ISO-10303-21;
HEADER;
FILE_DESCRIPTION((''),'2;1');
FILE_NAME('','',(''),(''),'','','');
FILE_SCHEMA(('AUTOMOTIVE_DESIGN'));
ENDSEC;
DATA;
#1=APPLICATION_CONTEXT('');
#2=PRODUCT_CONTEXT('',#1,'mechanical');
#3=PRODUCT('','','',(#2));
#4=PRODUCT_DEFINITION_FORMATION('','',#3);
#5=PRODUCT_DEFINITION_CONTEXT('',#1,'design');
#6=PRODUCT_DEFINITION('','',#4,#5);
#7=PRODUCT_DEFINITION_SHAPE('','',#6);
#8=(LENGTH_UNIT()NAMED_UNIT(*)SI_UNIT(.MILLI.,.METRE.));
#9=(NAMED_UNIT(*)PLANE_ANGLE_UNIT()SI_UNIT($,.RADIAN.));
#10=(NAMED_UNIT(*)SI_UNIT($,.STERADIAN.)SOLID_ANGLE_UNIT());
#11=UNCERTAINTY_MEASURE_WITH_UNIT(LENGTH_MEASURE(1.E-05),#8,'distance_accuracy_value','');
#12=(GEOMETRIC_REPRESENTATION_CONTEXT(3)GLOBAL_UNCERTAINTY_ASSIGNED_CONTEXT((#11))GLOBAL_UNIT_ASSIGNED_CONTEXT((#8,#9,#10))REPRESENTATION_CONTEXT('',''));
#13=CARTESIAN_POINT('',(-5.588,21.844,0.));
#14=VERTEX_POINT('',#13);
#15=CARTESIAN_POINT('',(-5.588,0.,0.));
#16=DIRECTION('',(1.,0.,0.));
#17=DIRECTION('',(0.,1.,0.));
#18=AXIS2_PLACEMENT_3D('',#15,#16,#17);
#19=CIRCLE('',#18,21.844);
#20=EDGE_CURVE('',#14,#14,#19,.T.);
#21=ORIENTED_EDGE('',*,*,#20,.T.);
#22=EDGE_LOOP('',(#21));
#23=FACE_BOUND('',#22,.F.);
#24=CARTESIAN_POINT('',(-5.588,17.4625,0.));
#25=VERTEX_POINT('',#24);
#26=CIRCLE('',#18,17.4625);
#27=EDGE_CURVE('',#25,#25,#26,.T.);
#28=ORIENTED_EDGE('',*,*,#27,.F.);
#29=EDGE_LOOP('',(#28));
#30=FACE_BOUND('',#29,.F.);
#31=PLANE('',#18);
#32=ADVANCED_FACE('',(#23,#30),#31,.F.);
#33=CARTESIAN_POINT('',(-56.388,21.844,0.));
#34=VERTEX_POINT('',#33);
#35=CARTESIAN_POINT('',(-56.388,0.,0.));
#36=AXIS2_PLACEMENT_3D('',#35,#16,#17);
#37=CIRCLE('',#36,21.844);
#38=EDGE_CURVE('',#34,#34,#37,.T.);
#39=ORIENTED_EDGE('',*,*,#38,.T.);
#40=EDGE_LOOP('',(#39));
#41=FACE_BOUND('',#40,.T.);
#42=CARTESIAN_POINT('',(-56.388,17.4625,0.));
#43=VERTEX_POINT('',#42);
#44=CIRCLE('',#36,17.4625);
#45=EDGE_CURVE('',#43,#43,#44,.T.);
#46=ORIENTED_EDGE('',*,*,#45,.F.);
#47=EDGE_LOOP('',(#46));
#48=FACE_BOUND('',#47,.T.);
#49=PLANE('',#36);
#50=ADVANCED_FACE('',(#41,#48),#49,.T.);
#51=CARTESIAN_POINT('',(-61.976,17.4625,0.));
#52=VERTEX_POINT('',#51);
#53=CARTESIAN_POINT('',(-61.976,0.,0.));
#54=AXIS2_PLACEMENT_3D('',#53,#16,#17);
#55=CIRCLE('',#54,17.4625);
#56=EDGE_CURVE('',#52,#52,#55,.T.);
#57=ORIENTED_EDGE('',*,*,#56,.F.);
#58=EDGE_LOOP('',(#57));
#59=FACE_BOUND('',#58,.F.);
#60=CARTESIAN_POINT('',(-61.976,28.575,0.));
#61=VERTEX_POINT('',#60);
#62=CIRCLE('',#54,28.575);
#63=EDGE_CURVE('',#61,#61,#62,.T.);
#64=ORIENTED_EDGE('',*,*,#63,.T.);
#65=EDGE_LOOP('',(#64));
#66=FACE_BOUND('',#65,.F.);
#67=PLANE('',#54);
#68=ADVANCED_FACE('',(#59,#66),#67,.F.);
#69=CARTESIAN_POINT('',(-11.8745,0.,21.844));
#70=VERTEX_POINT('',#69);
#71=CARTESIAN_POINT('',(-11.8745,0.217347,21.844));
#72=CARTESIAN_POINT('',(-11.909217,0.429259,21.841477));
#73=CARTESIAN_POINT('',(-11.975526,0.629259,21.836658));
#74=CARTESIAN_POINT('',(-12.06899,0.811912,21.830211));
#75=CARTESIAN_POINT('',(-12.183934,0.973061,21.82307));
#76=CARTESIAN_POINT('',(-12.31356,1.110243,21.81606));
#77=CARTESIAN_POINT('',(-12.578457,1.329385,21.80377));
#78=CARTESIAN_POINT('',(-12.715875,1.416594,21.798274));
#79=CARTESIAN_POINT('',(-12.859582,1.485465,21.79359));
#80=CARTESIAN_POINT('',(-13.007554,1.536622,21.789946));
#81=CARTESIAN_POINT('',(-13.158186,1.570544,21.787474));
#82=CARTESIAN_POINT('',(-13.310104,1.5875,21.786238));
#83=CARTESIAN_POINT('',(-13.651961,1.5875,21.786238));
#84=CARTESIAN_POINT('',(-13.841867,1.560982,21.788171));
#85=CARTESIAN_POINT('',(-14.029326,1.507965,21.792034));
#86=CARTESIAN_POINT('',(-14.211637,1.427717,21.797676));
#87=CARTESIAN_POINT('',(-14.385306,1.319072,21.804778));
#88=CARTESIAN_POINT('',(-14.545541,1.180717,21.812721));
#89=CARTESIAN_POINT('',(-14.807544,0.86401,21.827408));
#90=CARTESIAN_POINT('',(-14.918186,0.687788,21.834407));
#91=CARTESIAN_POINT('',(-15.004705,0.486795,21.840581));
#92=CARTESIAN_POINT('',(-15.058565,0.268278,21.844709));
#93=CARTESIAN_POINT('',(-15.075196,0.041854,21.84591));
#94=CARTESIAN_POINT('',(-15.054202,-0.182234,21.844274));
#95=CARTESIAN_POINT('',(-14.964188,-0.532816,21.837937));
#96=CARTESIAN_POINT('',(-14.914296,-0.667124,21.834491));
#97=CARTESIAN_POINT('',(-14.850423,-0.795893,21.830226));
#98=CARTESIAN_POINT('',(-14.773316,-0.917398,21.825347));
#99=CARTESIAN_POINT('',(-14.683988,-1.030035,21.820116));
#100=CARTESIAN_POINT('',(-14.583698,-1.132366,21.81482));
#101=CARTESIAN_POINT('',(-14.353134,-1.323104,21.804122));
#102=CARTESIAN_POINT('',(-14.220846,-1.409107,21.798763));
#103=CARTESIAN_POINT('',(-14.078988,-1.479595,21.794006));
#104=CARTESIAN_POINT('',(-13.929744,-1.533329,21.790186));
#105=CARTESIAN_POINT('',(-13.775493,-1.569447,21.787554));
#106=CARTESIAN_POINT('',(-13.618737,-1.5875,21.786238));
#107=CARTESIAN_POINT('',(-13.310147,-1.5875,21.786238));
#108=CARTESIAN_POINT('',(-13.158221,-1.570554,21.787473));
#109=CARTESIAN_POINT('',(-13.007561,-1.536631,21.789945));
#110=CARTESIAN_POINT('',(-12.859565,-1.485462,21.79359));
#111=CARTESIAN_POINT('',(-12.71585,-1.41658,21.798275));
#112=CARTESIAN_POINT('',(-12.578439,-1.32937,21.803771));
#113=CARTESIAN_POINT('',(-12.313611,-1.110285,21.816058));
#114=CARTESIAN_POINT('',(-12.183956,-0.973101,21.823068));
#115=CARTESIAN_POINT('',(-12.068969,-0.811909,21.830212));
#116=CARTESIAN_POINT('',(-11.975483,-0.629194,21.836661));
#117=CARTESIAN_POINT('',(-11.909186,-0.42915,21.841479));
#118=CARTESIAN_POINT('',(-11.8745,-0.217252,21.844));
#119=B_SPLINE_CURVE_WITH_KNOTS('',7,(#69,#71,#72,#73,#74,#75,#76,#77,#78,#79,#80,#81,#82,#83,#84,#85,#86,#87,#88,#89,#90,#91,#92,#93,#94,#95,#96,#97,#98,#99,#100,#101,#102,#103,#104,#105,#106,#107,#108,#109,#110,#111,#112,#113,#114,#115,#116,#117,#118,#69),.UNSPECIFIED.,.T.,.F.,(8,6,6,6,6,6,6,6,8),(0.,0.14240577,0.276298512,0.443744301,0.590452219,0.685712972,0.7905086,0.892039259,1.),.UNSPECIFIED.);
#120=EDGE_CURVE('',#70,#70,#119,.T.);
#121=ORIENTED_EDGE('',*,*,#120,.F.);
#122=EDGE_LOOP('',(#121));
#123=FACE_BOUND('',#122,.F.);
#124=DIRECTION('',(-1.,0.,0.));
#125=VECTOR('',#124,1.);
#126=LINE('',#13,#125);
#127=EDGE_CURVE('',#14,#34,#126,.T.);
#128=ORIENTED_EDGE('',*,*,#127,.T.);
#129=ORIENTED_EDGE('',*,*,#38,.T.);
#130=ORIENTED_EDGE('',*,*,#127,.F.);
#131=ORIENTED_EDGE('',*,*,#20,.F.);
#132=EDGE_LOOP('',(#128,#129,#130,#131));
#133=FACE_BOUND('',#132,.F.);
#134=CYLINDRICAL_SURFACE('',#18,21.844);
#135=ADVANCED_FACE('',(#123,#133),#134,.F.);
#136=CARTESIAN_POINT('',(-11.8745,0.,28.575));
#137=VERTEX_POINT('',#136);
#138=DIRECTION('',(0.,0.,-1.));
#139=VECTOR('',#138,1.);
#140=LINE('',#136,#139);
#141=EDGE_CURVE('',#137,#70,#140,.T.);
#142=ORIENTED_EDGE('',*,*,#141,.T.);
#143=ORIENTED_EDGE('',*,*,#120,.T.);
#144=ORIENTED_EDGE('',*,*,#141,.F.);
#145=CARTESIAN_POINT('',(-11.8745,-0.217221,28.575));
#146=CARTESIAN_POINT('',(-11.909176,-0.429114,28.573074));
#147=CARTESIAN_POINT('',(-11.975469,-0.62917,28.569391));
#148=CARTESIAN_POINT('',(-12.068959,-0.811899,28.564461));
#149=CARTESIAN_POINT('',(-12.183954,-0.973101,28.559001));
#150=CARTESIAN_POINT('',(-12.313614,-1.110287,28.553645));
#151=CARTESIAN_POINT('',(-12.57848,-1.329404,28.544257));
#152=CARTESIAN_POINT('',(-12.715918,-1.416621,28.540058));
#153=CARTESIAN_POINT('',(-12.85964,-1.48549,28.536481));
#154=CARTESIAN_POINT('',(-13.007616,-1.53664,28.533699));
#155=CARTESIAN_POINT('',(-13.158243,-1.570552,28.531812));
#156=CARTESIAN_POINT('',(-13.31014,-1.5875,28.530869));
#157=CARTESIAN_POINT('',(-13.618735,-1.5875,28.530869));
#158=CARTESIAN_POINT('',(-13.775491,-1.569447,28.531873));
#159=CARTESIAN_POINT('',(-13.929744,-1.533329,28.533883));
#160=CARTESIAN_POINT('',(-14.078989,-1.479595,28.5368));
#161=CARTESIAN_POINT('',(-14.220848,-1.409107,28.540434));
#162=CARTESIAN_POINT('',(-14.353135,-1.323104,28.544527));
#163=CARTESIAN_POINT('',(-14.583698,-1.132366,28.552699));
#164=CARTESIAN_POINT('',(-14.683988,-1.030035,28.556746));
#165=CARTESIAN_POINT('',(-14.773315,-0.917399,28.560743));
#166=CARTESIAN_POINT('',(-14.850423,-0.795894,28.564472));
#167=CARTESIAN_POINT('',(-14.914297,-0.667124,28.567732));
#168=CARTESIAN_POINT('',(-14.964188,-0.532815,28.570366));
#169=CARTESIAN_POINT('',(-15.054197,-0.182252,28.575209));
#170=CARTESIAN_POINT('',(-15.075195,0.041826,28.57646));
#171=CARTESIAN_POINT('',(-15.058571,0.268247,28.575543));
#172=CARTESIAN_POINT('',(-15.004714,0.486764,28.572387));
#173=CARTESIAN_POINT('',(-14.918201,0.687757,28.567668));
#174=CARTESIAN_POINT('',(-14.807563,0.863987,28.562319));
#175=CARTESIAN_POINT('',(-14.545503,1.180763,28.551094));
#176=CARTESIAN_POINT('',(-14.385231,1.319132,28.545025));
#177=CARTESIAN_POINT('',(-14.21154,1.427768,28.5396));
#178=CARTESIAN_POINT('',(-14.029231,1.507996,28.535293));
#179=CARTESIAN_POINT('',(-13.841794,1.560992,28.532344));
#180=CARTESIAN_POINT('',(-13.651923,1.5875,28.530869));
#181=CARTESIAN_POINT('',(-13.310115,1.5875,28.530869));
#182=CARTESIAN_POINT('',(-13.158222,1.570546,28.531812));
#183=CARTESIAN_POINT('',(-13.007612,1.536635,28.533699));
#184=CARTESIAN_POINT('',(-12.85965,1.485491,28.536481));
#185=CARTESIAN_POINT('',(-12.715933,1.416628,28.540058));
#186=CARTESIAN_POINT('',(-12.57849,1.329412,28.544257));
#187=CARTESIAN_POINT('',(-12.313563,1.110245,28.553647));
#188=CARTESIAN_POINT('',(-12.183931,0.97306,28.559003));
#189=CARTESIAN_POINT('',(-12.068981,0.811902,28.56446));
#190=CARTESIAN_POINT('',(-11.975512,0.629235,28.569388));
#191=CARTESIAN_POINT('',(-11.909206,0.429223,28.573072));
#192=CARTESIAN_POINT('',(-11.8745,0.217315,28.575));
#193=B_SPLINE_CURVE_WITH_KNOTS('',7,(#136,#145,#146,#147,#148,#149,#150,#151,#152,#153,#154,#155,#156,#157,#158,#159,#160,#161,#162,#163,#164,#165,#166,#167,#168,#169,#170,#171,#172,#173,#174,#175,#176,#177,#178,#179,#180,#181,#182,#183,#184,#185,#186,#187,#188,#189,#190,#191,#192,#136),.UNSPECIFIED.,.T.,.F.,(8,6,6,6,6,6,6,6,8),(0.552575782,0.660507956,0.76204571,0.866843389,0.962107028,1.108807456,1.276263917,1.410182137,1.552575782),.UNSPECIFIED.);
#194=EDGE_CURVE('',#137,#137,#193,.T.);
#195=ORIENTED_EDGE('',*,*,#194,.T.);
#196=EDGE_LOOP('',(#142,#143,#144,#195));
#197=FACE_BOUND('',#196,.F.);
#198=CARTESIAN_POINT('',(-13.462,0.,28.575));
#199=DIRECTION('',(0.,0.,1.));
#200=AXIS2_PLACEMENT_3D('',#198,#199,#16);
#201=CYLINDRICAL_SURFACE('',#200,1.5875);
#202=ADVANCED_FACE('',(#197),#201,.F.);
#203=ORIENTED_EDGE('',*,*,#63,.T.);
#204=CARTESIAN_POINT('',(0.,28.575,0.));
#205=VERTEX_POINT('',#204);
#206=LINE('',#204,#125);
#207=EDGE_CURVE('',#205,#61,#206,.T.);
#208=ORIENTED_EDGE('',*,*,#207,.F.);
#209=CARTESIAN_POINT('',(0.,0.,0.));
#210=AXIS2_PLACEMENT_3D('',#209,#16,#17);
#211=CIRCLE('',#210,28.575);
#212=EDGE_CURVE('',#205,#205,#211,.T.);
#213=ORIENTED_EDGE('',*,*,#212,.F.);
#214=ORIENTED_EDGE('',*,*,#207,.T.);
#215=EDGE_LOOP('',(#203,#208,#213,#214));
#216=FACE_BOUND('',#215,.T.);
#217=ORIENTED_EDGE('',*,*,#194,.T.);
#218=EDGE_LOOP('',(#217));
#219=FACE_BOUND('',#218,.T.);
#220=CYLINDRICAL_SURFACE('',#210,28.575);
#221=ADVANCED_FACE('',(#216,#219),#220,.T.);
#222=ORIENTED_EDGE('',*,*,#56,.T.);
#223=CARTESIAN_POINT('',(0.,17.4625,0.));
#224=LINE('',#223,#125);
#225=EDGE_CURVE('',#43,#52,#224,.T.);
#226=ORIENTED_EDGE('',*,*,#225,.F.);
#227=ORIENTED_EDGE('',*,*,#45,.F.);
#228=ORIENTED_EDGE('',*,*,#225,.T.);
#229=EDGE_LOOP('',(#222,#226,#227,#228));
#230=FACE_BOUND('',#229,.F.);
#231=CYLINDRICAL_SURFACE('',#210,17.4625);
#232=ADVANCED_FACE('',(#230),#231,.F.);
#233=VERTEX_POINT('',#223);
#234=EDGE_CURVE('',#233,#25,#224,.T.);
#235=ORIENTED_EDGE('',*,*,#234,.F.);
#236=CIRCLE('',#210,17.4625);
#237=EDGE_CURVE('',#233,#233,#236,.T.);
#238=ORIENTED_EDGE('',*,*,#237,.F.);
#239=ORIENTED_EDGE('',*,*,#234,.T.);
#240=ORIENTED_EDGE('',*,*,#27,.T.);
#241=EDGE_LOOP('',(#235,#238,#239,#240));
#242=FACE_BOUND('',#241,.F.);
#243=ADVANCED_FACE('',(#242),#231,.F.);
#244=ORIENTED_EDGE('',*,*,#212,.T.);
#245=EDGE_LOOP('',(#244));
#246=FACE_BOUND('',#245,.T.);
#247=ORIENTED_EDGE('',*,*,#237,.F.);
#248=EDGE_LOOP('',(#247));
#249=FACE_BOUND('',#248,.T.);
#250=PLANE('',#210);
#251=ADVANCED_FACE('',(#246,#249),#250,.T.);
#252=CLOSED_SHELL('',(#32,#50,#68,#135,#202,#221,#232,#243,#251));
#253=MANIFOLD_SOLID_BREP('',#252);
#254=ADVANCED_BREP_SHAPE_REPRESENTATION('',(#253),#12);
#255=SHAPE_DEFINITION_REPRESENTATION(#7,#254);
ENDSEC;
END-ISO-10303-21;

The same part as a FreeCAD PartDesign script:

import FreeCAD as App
import Part
import Sketcher

V = App.Vector
Q = App.Units.Quantity

doc = App.newDocument("Part")
params = doc.addObject("Spreadsheet::Sheet", "Params")
for row, (alias, value) in enumerate([
    ("sketch1_diameter", "2.25 in"),
    ("sketch1_diameter2", "1.375 in"),
    ("pad1_length", "2.44 in"),
    ("sketch2_diameter", "1.72 in"),
    ("pocket1_length", "2 in"),
    ("sketch3_diameter", "0.125 in"),
    ("pocket2_length", "0.5 in"),
], start=1):
    params.set(f"A{row}", alias)
    params.set(f"B{row}", "=" + value)
    params.setAlias(f"B{row}", alias)

body = doc.addObject("PartDesign::Body", "Body")

# Sketch on YZ plane
sketch1 = doc.addObject("Sketcher::SketchObject", "Sketch")
body.addObject(sketch1)
sketch1.AttachmentSupport = (doc.YZ_Plane, [""])
sketch1.MapMode = "FlatFace"
sketch1.addGeometry(Part.Circle(V(0, 0, 0), V(0, 0, 1), 28.575), False)
sketch1.addGeometry(Part.Circle(V(0, 0, 0), V(0, 0, 1), 17.4625), False)
sketch1.addConstraint(Sketcher.Constraint("Coincident", 0, 3, -1, 1))
sketch1.addConstraint(Sketcher.Constraint("Coincident", 1, 3, -1, 1))
sketch1.addConstraint(Sketcher.Constraint("Diameter", 0, Q("2.25 in")))
sketch1.addConstraint(Sketcher.Constraint("Diameter", 1, Q("1.375 in")))
sketch1.setExpression("Constraints[2]", "Params.sketch1_diameter")
sketch1.setExpression("Constraints[3]", "Params.sketch1_diameter2")
pad1 = doc.addObject("PartDesign::Pad", "Pad")
body.addObject(pad1)
pad1.Profile = sketch1
pad1.setExpression("Length", "Params.pad1_length")
pad1.Reversed = True

# Sketch on YZ plane
sketch2 = doc.addObject("Sketcher::SketchObject", "Sketch001")
body.addObject(sketch2)
sketch2.AttachmentSupport = (doc.YZ_Plane, [""])
sketch2.MapMode = "FlatFace"
sketch2.AttachmentOffset = App.Placement(V(0, 0, -0.22 * 25.4), App.Rotation())
sketch2.addGeometry(Part.Circle(V(0, 0, 0), V(0, 0, 1), 21.844), False)
sketch2.addConstraint(Sketcher.Constraint("Coincident", 0, 3, -1, 1))
sketch2.addConstraint(Sketcher.Constraint("Diameter", 0, Q("1.72 in")))
sketch2.setExpression("Constraints[1]", "Params.sketch2_diameter")
pocket1 = doc.addObject("PartDesign::Pocket", "Pocket")
body.addObject(pocket1)
pocket1.Profile = sketch2
pocket1.setExpression("Length", "Params.pocket1_length")

# Sketch on XY plane
sketch3 = doc.addObject("Sketcher::SketchObject", "Sketch002")
body.addObject(sketch3)
sketch3.AttachmentSupport = (doc.XY_Plane, [""])
sketch3.MapMode = "FlatFace"
sketch3.AttachmentOffset = App.Placement(V(0, 0, 1.125 * 25.4), App.Rotation())
sketch3.addGeometry(Part.Circle(V(-13.462, 0, 0), V(0, 0, 1), 1.5875), False)
sketch3.addConstraint(Sketcher.Constraint("PointOnObject", 0, 3, -1))
sketch3.addConstraint(Sketcher.Constraint("Diameter", 0, Q("0.125 in")))
sketch3.addConstraint(Sketcher.Constraint("DistanceX", 0, 3, -1, 1, Q("0.53 in")))
sketch3.setExpression("Constraints[1]", "Params.sketch3_diameter")
pocket2 = doc.addObject("PartDesign::Pocket", "Pocket001")
body.addObject(pocket2)
pocket2.Profile = sketch3
pocket2.setExpression("Length", "Params.pocket2_length")

doc.recompute()
